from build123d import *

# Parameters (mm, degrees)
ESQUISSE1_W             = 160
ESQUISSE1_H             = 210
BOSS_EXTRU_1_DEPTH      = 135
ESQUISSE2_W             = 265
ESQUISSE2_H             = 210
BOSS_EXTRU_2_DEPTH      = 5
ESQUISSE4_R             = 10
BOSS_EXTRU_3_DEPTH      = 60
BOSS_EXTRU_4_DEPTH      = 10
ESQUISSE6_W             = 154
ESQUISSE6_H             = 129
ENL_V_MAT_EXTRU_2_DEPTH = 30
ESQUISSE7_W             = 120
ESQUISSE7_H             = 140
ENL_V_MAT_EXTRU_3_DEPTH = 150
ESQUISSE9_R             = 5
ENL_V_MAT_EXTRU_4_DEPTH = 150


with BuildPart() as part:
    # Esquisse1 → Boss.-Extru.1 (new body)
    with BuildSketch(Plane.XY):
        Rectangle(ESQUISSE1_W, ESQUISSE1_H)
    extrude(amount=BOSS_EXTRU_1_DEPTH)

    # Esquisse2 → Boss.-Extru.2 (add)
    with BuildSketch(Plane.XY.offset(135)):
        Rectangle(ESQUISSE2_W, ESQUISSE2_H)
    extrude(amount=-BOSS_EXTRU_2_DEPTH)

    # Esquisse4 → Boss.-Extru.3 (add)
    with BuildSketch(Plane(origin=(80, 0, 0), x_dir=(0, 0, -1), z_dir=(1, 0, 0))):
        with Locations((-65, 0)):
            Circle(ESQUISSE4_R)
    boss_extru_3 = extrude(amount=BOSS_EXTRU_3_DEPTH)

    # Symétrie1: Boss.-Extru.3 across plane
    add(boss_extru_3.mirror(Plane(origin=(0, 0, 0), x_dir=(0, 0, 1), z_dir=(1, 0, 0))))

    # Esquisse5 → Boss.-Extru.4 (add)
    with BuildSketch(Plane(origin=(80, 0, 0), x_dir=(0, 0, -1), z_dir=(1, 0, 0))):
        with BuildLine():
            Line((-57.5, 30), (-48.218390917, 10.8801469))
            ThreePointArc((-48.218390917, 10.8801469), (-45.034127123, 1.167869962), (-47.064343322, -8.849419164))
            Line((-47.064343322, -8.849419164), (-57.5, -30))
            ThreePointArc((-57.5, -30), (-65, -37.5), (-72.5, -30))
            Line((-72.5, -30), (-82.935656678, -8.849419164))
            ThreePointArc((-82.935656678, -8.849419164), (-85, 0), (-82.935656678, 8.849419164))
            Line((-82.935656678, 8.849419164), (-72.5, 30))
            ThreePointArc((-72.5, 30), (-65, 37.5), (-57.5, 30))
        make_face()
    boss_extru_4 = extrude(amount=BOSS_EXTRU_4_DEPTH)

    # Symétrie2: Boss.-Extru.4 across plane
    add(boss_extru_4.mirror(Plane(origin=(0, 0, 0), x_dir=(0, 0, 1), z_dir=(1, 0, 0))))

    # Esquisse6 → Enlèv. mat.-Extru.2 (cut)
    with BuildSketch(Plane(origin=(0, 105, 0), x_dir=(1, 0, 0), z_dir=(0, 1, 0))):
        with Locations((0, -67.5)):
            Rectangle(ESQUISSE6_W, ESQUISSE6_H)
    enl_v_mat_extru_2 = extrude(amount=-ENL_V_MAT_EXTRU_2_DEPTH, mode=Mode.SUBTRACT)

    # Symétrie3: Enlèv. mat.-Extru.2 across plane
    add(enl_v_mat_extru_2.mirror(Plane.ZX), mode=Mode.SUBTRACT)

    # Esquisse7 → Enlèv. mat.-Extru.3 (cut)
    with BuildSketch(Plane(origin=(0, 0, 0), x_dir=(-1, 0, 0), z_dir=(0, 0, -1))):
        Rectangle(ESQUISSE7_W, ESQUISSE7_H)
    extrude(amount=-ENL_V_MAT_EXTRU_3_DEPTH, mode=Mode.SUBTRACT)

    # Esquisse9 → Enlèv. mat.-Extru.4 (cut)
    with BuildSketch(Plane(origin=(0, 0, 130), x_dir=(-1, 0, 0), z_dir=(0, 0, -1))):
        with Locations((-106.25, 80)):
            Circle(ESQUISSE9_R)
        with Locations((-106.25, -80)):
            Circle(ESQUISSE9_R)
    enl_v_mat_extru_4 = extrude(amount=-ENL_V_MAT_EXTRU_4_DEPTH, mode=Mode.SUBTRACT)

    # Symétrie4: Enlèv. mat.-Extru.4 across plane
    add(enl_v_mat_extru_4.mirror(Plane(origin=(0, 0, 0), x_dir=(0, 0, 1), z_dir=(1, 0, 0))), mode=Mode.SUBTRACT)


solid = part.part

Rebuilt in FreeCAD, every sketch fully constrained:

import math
import FreeCAD as App
import Part
import Sketcher
from FreeCAD import Vector
Q = App.Units.Quantity


def add_polygon(sketch, points):
    """Adds a closed chain of lines whose ends are joined by coincident constraints."""
    first, n = sketch.GeometryCount, len(points)
    for a, b in zip(points, points[1:] + points[:1]):
        sketch.addGeometry(Part.LineSegment(App.Vector(*a, 0), App.Vector(*b, 0)), False)
    for i in range(n):
        sketch.addConstraint(Sketcher.Constraint("Coincident", first + i, 2, first + (i + 1) % n, 1))

doc = App.newDocument("Part")
body = doc.addObject("PartDesign::Body", "Body")

# Sketch on XY plane
sketch1 = body.newObject("Sketcher::SketchObject", "Sketch")
sketch1.AttachmentSupport = (doc.getObject("XY_Plane"), [""])
sketch1.MapMode = "FlatFace"
add_polygon(sketch1, [(-80, 105), (-80, -105), (80, -105), (80, 105)])  # lines 0-3
sketch1.addConstraint([
    Sketcher.Constraint("Vertical", 0),
    Sketcher.Constraint("Horizontal", 1),
    Sketcher.Constraint("Vertical", 2),
    Sketcher.Constraint("Horizontal", 3),
    Sketcher.Constraint("Symmetric", 0, 2, 2, 2, -1, 1),
    Sketcher.Constraint("DistanceX", 1, 1, 1, 2, Q("160 mm")),
    Sketcher.Constraint("DistanceY", 0, 2, 0, 1, Q("210 mm")),
])
pad1 = body.newObject("PartDesign::Pad", "Pad")
pad1.Profile = sketch1
pad1.Length = 135

# Sketch on XY plane
sketch2 = body.newObject("Sketcher::SketchObject", "Sketch001")
sketch2.AttachmentSupport = (doc.getObject("XY_Plane"), [""])
sketch2.MapMode = "FlatFace"
sketch2.AttachmentOffset = App.Placement(Vector(0, 0, 135), App.Rotation())
add_polygon(sketch2, [(-132, 105), (-132, -105), (132, -105), (132, 105)])  # lines 0-3
sketch2.addConstraint([
    Sketcher.Constraint("Vertical", 0),
    Sketcher.Constraint("Horizontal", 1),
    Sketcher.Constraint("Vertical", 2),
    Sketcher.Constraint("Horizontal", 3),
    Sketcher.Constraint("Symmetric", 0, 2, 2, 2, -1, 1),
    Sketcher.Constraint("DistanceX", 1, 1, 1, 2, Q("265 mm")),
    Sketcher.Constraint("DistanceY", 0, 2, 0, 1, Q("210 mm")),
])
pad2 = body.newObject("PartDesign::Pad", "Pad001")
pad2.Profile = sketch2
pad2.Length = 5
pad2.Reversed = True

# Sketch on YZ plane
sketch3 = body.newObject("Sketcher::SketchObject", "Sketch002")
sketch3.AttachmentSupport = (doc.getObject("YZ_Plane"), [""])
sketch3.MapMode = "FlatFace"
sketch3.AttachmentOffset = App.Placement(Vector(0, 0, 80), App.Rotation())
sketch3.addGeometry(Part.Circle(Vector(0, 65, 0), Vector(0, 0, 1), 10), False)
sketch3.addConstraint([
    Sketcher.Constraint("PointOnObject", 0, 3, -2),
    Sketcher.Constraint("Diameter", 0, Q("20 mm")),
    Sketcher.Constraint("DistanceY", -1, 1, 0, 3, Q("65 mm")),
])
pad3 = body.newObject("PartDesign::Pad", "Pad002")
pad3.Profile = sketch3
pad3.Length = 60
doc.recompute()

mirrored = body.newObject("PartDesign::Mirrored", "Mirrored")
mirrored.Originals = [pad3]
mirrored.MirrorPlane = (doc.getObject("YZ_Plane"), [""])
body.Tip = mirrored

# Sketch on YZ plane
sketch4 = body.newObject("Sketcher::SketchObject", "Sketch003")
sketch4.AttachmentSupport = (doc.getObject("YZ_Plane"), [""])
sketch4.MapMode = "FlatFace"
sketch4.AttachmentOffset = App.Placement(Vector(0, 0, 80), App.Rotation())
sketch4.addGeometry([
    Part.LineSegment(Vector(11, 48, 0), Vector(30, 58, 0)),  # 0
    Part.ArcOfCircle(Part.Circle(Vector(30, 65, 0), Vector(0, 0, 1), 8), math.radians(-90), math.radians(90)),  # 1
    Part.LineSegment(Vector(30, 72, 0), Vector(9, 83, 0)),  # 2
    Part.ArcOfCircle(Part.Circle(Vector(0, 65, 0), Vector(0, 0, 1), 20), math.radians(64), math.radians(116)),  # 3
    Part.LineSegment(Vector(-9, 83, 0), Vector(-30, 72, 0)),  # 4
    Part.ArcOfCircle(Part.Circle(Vector(-30, 65, 0), Vector(0, 0, 1), 8), math.radians(90), math.radians(270)),  # 5
    Part.LineSegment(Vector(-30, 58, 0), Vector(-9, 47, 0)),  # 6
    Part.ArcOfCircle(Part.Circle(Vector(0, 65, 0), Vector(0, 0, 1), 20), math.radians(-116), math.radians(-57)),  # 7
], False)
sketch4.addConstraint([
    Sketcher.Constraint("Coincident", 0, 2, 1, 1),
    Sketcher.Constraint("Coincident", 1, 2, 2, 1),
    Sketcher.Constraint("Tangent", 2, 2, 3, 1),
    Sketcher.Constraint("Tangent", 3, 2, 4, 1),
    Sketcher.Constraint("Coincident", 4, 2, 5, 1),
    Sketcher.Constraint("Coincident", 5, 2, 6, 1),
    Sketcher.Constraint("Tangent", 6, 2, 7, 1),
    Sketcher.Constraint("Coincident", 7, 2, 0, 1),
    Sketcher.Constraint("Coincident", 7, 3, 3, 3),
    Sketcher.Constraint("Equal", 1, 5),
    Sketcher.Constraint("Equal", 3, 7),
    Sketcher.Constraint("Symmetric", 1, 3, 5, 3, -2),
    Sketcher.Constraint("Symmetric", 2, 2, 3, 2, -2),
    Sketcher.Constraint("Parallel", 2, 6),
    Sketcher.Constraint("Horizontal", 1, 3, 3, 3),
    Sketcher.Constraint("Vertical", 1, 3, 0, 2),
    Sketcher.Constraint("Vertical", 0, 2, 1, 2),
    Sketcher.Constraint("Radius", 3, Q("20 mm")),
    Sketcher.Constraint("Radius", 1, Q("7.5 mm")),
    Sketcher.Constraint("DistanceX", -1, 1, 1, 3, Q("30 mm")),
    Sketcher.Constraint("DistanceY", -1, 1, 1, 3, Q("65 mm")),
    Sketcher.Constraint("DistanceY", -1, 1, 7, 2, Q("48.218391 mm")),
])
pad4 = body.newObject("PartDesign::Pad", "Pad003")
pad4.Profile = sketch4
pad4.Length = 10
doc.recompute()

mirrored2 = body.newObject("PartDesign::Mirrored", "Mirrored001")
mirrored2.Originals = [pad4]
mirrored2.MirrorPlane = (doc.getObject("YZ_Plane"), [""])
body.Tip = mirrored2

# Sketch on XZ plane
sketch5 = body.newObject("Sketcher::SketchObject", "Sketch004")
sketch5.AttachmentSupport = (doc.getObject("XZ_Plane"), [""])
sketch5.MapMode = "FlatFace"
sketch5.AttachmentOffset = App.Placement(Vector(0, 0, -105), App.Rotation())
add_polygon(sketch5, [(-77, 3), (-77, 132), (77, 132), (77, 3)])  # lines 0-3
sketch5.addConstraint([
    Sketcher.Constraint("Vertical", 0),
    Sketcher.Constraint("Horizontal", 1),
    Sketcher.Constraint("Vertical", 2),
    Sketcher.Constraint("Horizontal", 3),
    Sketcher.Constraint("DistanceX", 1, 1, 1, 2, Q("154 mm")),
    Sketcher.Constraint("DistanceY", 0, 1, 0, 2, Q("129 mm")),
    Sketcher.Constraint("DistanceX", 0, 2, -1, 1, Q("77 mm")),
    Sketcher.Constraint("DistanceY", -1, 1, 0, 2, Q("132 mm")),
])
pocket1 = body.newObject("PartDesign::Pocket", "Pocket")
pocket1.Profile = sketch5
pocket1.Length = 30
pocket1.Reversed = True
doc.recompute()

mirrored3 = body.newObject("PartDesign::Mirrored", "Mirrored002")
mirrored3.Originals = [pocket1]
mirrored3.MirrorPlane = (doc.getObject("XZ_Plane"), [""])
body.Tip = mirrored3

# Sketch on XY plane
sketch6 = body.newObject("Sketcher::SketchObject", "Sketch005")
sketch6.AttachmentSupport = (doc.getObject("XY_Plane"), [""])
sketch6.MapMode = "FlatFace"
add_polygon(sketch6, [(60, 70), (60, -70), (-60, -70), (-60, 70)])  # lines 0-3
sketch6.addConstraint([
    Sketcher.Constraint("Vertical", 0),
    Sketcher.Constraint("Horizontal", 1),
    Sketcher.Constraint("Vertical", 2),
    Sketcher.Constraint("Horizontal", 3),
    Sketcher.Constraint("Symmetric", 0, 2, 2, 2, -1, 1),
    Sketcher.Constraint("DistanceX", 1, 2, 1, 1, Q("120 mm")),
    Sketcher.Constraint("DistanceY", 0, 2, 0, 1, Q("140 mm")),
])
pocket2 = body.newObject("PartDesign::Pocket", "Pocket001")
pocket2.Profile = sketch6
pocket2.Length = 150
pocket2.Reversed = True

# Sketch on XY plane
sketch7 = body.newObject("Sketcher::SketchObject", "Sketch006")
sketch7.AttachmentSupport = (doc.getObject("XY_Plane"), [""])
sketch7.MapMode = "FlatFace"
sketch7.AttachmentOffset = App.Placement(Vector(0, 0, 130), App.Rotation())
sketch7.addGeometry([
    Part.Circle(Vector(106, 80, 0), Vector(0, 0, 1), 5),
    Part.Circle(Vector(106, -80, 0), Vector(0, 0, 1), 5),
], False)
sketch7.addConstraint([
    Sketcher.Constraint("Equal", 0, 1),
    Sketcher.Constraint("Symmetric", 0, 3, 1, 3, -1),
    Sketcher.Constraint("Diameter", 0, Q("10 mm")),
    Sketcher.Constraint("DistanceY", -1, 1, 0, 3, Q("80 mm")),
    Sketcher.Constraint("DistanceX", -1, 1, 0, 3, Q("106.25 mm")),
])
pocket3 = body.newObject("PartDesign::Pocket", "Pocket002")
pocket3.Profile = sketch7
pocket3.Length = 150
pocket3.Reversed = True
doc.recompute()

mirrored4 = body.newObject("PartDesign::Mirrored", "Mirrored003")
mirrored4.Originals = [pocket3]
mirrored4.MirrorPlane = (doc.getObject("YZ_Plane"), [""])
body.Tip = mirrored4

doc.recompute()
